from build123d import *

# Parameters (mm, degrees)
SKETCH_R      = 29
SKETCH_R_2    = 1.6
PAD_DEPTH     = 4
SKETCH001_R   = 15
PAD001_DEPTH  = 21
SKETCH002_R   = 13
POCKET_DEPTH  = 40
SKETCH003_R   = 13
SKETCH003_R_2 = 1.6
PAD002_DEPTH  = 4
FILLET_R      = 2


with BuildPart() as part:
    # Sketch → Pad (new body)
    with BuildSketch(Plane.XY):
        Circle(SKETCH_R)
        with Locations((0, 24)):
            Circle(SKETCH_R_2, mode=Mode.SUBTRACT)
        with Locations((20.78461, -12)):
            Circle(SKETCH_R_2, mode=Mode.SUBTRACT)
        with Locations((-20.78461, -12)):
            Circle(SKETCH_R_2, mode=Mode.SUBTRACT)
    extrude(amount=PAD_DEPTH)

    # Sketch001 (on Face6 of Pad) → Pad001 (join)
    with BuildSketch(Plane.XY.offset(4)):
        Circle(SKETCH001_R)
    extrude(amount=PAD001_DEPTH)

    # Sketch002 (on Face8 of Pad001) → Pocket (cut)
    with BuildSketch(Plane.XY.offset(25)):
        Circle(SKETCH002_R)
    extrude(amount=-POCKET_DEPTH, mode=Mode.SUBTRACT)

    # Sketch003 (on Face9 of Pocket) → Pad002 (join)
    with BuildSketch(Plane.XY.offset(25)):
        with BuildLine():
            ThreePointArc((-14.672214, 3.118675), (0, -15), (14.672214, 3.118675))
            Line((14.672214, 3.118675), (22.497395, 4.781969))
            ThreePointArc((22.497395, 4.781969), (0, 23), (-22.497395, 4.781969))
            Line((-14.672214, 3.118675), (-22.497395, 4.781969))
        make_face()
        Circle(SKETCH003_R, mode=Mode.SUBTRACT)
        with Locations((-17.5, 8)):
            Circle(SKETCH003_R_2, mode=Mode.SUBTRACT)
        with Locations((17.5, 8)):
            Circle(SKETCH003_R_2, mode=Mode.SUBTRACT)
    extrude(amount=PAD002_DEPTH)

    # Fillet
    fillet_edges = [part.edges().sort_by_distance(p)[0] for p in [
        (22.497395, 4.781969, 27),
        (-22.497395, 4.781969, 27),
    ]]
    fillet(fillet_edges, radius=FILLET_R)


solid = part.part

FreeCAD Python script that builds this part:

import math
import FreeCAD as App
import Part
import Sketcher

V = App.Vector
Q = App.Units.Quantity


def edges_at(feature, points):
    """Names of the edges that pass closest to the given points."""
    edges = feature.Shape.Edges
    near = lambda p: min(range(len(edges)), key=lambda i: edges[i].distToShape(Part.Vertex(*p))[0])
    return sorted({f"Edge{near(p) + 1}" for p in points})

doc = App.newDocument("Part")
body = doc.addObject("PartDesign::Body", "Body")

# Sketch on XY plane
sketch1 = body.newObject("Sketcher::SketchObject", "Sketch")
sketch1.AttachmentSupport = (doc.getObject("XY_Plane"), [""])
sketch1.MapMode = "FlatFace"
sketch1.addGeometry(Part.Circle(V(0, 0, 0), V(0, 0, 1), 29), False)
sketch1.addGeometry(Part.Circle(V(-20.8, -12, 0), V(0, 0, 1), 1.6), False)
sketch1.addGeometry(Part.Circle(V(20.8, -12, 0), V(0, 0, 1), 1.6), False)
sketch1.addGeometry(Part.Circle(V(0, 24, 0), V(0, 0, 1), 1.6), False)
sketch1.addConstraint(Sketcher.Constraint("Coincident", 0, 3, -1, 1))
sketch1.addConstraint(Sketcher.Constraint("Equal", 1, 2))
sketch1.addConstraint(Sketcher.Constraint("Equal", 2, 3))
sketch1.addConstraint(Sketcher.Constraint("Symmetric", 1, 3, 2, 3, -2))
sketch1.addConstraint(Sketcher.Constraint("PointOnObject", 3, 3, -2))
sketch1.addConstraint(Sketcher.Constraint("Diameter", 0, 58.0))
sketch1.addConstraint(Sketcher.Constraint("Diameter", 1, 3.2))
sketch1.addConstraint(Sketcher.Constraint("DistanceY", 1, 3, -1, 1, 12.0))
sketch1.addConstraint(Sketcher.Constraint("DistanceY", -1, 1, 3, 3, 24.0))
sketch1.addConstraint(Sketcher.Constraint("DistanceX", 1, 3, -1, 1, 20.78461))
pad1 = body.newObject("PartDesign::Pad", "Pad")
pad1.Profile = sketch1
pad1.Length = 4

# Sketch on XY plane
sketch2 = body.newObject("Sketcher::SketchObject", "Sketch001")
sketch2.AttachmentSupport = (doc.getObject("XY_Plane"), [""])
sketch2.MapMode = "FlatFace"
sketch2.AttachmentOffset = App.Placement(V(0, 0, 4), App.Rotation())
sketch2.addGeometry(Part.Circle(V(0, 0, 0), V(0, 0, 1), 15), False)
sketch2.addConstraint(Sketcher.Constraint("Coincident", 0, 3, -1, 1))
sketch2.addConstraint(Sketcher.Constraint("Diameter", 0, 30.0))
pad2 = body.newObject("PartDesign::Pad", "Pad001")
pad2.Profile = sketch2
pad2.Length = 21

# Sketch on XY plane
sketch3 = body.newObject("Sketcher::SketchObject", "Sketch002")
sketch3.AttachmentSupport = (doc.getObject("XY_Plane"), [""])
sketch3.MapMode = "FlatFace"
sketch3.AttachmentOffset = App.Placement(V(0, 0, 25), App.Rotation())
sketch3.addGeometry(Part.Circle(V(0, 0, 0), V(0, 0, 1), 13), False)
sketch3.addConstraint(Sketcher.Constraint("Coincident", 0, 3, -1, 1))
sketch3.addConstraint(Sketcher.Constraint("Diameter", 0, 26.0))
pocket1 = body.newObject("PartDesign::Pocket", "Pocket")
pocket1.Profile = sketch3
pocket1.Length = 40

# Sketch on XY plane
sketch4 = body.newObject("Sketcher::SketchObject", "Sketch003")
sketch4.AttachmentSupport = (doc.getObject("XY_Plane"), [""])
sketch4.MapMode = "FlatFace"
sketch4.AttachmentOffset = App.Placement(V(0, 0, 25), App.Rotation())
sketch4.addGeometry(Part.ArcOfCircle(Part.Circle(V(0, 0, 0), V(0, 0, 1), 15), math.radians(168), math.radians(372)), False)
sketch4.addGeometry(Part.LineSegment(V(14.7, 3.1, 0), V(22.5, 4.8, 0)), False)
sketch4.addGeometry(Part.ArcOfCircle(Part.Circle(V(0, 0, 0), V(0, 0, 1), 23), math.radians(12), math.radians(168)), False)
sketch4.addGeometry(Part.LineSegment(V(-22.5, 4.8, 0), V(-14.7, 3.1, 0)), False)
sketch4.addGeometry(Part.Circle(V(0, 0, 0), V(0, 0, 1), 13), False)
sketch4.addGeometry(Part.Circle(V(-17.5, 8, 0), V(0, 0, 1), 1.6), False)
sketch4.addGeometry(Part.Circle(V(17.5, 8, 0), V(0, 0, 1), 1.6), False)
sketch4.addConstraint(Sketcher.Constraint("Coincident", 0, 2, 1, 1))
sketch4.addConstraint(Sketcher.Constraint("Coincident", 1, 2, 2, 1))
sketch4.addConstraint(Sketcher.Constraint("Coincident", 2, 2, 3, 1))
sketch4.addConstraint(Sketcher.Constraint("Coincident", 3, 2, 0, 1))
sketch4.addConstraint(Sketcher.Constraint("Coincident", 0, 3, -1, 1))
sketch4.addConstraint(Sketcher.Constraint("Coincident", 2, 3, -1, 1))
sketch4.addConstraint(Sketcher.Constraint("Coincident", 4, 3, -1, 1))
sketch4.addConstraint(Sketcher.Constraint("Equal", 5, 6))
sketch4.addConstraint(Sketcher.Constraint("Symmetric", 5, 3, 6, 3, -2))
sketch4.addConstraint(Sketcher.Constraint("Horizontal", 1, 2, 2, 2))
sketch4.addConstraint(Sketcher.Constraint("Horizontal", 0, 2, 3, 2))
sketch4.addConstraint(Sketcher.Constraint("Diameter", 4, 26.0))
sketch4.addConstraint(Sketcher.Constraint("Radius", 0, 15.0))
sketch4.addConstraint(Sketcher.Constraint("Radius", 2, 23.0))
sketch4.addConstraint(Sketcher.Constraint("Diameter", 5, 3.2))
sketch4.addConstraint(Sketcher.Constraint("Angle", 1, Q("12.000003 deg")))
sketch4.addConstraint(Sketcher.Constraint("DistanceY", -1, 1, 5, 3, 8.0))
sketch4.addConstraint(Sketcher.Constraint("DistanceX", 5, 3, 6, 3, 35.0))
sketch4.addConstraint(Sketcher.Constraint("DistanceY", -1, 1, 1, 2, 4.781969))
pad3 = body.newObject("PartDesign::Pad", "Pad002")
pad3.Profile = sketch4
pad3.Length = 4
doc.recompute()

fillet = body.newObject("PartDesign::Fillet", "Fillet")
fillet.Base = (pad3, edges_at(pad3, [(22.497, 4.782, 27), (-22.497, 4.782, 27)]))
fillet.Radius = 2

doc.recompute()
